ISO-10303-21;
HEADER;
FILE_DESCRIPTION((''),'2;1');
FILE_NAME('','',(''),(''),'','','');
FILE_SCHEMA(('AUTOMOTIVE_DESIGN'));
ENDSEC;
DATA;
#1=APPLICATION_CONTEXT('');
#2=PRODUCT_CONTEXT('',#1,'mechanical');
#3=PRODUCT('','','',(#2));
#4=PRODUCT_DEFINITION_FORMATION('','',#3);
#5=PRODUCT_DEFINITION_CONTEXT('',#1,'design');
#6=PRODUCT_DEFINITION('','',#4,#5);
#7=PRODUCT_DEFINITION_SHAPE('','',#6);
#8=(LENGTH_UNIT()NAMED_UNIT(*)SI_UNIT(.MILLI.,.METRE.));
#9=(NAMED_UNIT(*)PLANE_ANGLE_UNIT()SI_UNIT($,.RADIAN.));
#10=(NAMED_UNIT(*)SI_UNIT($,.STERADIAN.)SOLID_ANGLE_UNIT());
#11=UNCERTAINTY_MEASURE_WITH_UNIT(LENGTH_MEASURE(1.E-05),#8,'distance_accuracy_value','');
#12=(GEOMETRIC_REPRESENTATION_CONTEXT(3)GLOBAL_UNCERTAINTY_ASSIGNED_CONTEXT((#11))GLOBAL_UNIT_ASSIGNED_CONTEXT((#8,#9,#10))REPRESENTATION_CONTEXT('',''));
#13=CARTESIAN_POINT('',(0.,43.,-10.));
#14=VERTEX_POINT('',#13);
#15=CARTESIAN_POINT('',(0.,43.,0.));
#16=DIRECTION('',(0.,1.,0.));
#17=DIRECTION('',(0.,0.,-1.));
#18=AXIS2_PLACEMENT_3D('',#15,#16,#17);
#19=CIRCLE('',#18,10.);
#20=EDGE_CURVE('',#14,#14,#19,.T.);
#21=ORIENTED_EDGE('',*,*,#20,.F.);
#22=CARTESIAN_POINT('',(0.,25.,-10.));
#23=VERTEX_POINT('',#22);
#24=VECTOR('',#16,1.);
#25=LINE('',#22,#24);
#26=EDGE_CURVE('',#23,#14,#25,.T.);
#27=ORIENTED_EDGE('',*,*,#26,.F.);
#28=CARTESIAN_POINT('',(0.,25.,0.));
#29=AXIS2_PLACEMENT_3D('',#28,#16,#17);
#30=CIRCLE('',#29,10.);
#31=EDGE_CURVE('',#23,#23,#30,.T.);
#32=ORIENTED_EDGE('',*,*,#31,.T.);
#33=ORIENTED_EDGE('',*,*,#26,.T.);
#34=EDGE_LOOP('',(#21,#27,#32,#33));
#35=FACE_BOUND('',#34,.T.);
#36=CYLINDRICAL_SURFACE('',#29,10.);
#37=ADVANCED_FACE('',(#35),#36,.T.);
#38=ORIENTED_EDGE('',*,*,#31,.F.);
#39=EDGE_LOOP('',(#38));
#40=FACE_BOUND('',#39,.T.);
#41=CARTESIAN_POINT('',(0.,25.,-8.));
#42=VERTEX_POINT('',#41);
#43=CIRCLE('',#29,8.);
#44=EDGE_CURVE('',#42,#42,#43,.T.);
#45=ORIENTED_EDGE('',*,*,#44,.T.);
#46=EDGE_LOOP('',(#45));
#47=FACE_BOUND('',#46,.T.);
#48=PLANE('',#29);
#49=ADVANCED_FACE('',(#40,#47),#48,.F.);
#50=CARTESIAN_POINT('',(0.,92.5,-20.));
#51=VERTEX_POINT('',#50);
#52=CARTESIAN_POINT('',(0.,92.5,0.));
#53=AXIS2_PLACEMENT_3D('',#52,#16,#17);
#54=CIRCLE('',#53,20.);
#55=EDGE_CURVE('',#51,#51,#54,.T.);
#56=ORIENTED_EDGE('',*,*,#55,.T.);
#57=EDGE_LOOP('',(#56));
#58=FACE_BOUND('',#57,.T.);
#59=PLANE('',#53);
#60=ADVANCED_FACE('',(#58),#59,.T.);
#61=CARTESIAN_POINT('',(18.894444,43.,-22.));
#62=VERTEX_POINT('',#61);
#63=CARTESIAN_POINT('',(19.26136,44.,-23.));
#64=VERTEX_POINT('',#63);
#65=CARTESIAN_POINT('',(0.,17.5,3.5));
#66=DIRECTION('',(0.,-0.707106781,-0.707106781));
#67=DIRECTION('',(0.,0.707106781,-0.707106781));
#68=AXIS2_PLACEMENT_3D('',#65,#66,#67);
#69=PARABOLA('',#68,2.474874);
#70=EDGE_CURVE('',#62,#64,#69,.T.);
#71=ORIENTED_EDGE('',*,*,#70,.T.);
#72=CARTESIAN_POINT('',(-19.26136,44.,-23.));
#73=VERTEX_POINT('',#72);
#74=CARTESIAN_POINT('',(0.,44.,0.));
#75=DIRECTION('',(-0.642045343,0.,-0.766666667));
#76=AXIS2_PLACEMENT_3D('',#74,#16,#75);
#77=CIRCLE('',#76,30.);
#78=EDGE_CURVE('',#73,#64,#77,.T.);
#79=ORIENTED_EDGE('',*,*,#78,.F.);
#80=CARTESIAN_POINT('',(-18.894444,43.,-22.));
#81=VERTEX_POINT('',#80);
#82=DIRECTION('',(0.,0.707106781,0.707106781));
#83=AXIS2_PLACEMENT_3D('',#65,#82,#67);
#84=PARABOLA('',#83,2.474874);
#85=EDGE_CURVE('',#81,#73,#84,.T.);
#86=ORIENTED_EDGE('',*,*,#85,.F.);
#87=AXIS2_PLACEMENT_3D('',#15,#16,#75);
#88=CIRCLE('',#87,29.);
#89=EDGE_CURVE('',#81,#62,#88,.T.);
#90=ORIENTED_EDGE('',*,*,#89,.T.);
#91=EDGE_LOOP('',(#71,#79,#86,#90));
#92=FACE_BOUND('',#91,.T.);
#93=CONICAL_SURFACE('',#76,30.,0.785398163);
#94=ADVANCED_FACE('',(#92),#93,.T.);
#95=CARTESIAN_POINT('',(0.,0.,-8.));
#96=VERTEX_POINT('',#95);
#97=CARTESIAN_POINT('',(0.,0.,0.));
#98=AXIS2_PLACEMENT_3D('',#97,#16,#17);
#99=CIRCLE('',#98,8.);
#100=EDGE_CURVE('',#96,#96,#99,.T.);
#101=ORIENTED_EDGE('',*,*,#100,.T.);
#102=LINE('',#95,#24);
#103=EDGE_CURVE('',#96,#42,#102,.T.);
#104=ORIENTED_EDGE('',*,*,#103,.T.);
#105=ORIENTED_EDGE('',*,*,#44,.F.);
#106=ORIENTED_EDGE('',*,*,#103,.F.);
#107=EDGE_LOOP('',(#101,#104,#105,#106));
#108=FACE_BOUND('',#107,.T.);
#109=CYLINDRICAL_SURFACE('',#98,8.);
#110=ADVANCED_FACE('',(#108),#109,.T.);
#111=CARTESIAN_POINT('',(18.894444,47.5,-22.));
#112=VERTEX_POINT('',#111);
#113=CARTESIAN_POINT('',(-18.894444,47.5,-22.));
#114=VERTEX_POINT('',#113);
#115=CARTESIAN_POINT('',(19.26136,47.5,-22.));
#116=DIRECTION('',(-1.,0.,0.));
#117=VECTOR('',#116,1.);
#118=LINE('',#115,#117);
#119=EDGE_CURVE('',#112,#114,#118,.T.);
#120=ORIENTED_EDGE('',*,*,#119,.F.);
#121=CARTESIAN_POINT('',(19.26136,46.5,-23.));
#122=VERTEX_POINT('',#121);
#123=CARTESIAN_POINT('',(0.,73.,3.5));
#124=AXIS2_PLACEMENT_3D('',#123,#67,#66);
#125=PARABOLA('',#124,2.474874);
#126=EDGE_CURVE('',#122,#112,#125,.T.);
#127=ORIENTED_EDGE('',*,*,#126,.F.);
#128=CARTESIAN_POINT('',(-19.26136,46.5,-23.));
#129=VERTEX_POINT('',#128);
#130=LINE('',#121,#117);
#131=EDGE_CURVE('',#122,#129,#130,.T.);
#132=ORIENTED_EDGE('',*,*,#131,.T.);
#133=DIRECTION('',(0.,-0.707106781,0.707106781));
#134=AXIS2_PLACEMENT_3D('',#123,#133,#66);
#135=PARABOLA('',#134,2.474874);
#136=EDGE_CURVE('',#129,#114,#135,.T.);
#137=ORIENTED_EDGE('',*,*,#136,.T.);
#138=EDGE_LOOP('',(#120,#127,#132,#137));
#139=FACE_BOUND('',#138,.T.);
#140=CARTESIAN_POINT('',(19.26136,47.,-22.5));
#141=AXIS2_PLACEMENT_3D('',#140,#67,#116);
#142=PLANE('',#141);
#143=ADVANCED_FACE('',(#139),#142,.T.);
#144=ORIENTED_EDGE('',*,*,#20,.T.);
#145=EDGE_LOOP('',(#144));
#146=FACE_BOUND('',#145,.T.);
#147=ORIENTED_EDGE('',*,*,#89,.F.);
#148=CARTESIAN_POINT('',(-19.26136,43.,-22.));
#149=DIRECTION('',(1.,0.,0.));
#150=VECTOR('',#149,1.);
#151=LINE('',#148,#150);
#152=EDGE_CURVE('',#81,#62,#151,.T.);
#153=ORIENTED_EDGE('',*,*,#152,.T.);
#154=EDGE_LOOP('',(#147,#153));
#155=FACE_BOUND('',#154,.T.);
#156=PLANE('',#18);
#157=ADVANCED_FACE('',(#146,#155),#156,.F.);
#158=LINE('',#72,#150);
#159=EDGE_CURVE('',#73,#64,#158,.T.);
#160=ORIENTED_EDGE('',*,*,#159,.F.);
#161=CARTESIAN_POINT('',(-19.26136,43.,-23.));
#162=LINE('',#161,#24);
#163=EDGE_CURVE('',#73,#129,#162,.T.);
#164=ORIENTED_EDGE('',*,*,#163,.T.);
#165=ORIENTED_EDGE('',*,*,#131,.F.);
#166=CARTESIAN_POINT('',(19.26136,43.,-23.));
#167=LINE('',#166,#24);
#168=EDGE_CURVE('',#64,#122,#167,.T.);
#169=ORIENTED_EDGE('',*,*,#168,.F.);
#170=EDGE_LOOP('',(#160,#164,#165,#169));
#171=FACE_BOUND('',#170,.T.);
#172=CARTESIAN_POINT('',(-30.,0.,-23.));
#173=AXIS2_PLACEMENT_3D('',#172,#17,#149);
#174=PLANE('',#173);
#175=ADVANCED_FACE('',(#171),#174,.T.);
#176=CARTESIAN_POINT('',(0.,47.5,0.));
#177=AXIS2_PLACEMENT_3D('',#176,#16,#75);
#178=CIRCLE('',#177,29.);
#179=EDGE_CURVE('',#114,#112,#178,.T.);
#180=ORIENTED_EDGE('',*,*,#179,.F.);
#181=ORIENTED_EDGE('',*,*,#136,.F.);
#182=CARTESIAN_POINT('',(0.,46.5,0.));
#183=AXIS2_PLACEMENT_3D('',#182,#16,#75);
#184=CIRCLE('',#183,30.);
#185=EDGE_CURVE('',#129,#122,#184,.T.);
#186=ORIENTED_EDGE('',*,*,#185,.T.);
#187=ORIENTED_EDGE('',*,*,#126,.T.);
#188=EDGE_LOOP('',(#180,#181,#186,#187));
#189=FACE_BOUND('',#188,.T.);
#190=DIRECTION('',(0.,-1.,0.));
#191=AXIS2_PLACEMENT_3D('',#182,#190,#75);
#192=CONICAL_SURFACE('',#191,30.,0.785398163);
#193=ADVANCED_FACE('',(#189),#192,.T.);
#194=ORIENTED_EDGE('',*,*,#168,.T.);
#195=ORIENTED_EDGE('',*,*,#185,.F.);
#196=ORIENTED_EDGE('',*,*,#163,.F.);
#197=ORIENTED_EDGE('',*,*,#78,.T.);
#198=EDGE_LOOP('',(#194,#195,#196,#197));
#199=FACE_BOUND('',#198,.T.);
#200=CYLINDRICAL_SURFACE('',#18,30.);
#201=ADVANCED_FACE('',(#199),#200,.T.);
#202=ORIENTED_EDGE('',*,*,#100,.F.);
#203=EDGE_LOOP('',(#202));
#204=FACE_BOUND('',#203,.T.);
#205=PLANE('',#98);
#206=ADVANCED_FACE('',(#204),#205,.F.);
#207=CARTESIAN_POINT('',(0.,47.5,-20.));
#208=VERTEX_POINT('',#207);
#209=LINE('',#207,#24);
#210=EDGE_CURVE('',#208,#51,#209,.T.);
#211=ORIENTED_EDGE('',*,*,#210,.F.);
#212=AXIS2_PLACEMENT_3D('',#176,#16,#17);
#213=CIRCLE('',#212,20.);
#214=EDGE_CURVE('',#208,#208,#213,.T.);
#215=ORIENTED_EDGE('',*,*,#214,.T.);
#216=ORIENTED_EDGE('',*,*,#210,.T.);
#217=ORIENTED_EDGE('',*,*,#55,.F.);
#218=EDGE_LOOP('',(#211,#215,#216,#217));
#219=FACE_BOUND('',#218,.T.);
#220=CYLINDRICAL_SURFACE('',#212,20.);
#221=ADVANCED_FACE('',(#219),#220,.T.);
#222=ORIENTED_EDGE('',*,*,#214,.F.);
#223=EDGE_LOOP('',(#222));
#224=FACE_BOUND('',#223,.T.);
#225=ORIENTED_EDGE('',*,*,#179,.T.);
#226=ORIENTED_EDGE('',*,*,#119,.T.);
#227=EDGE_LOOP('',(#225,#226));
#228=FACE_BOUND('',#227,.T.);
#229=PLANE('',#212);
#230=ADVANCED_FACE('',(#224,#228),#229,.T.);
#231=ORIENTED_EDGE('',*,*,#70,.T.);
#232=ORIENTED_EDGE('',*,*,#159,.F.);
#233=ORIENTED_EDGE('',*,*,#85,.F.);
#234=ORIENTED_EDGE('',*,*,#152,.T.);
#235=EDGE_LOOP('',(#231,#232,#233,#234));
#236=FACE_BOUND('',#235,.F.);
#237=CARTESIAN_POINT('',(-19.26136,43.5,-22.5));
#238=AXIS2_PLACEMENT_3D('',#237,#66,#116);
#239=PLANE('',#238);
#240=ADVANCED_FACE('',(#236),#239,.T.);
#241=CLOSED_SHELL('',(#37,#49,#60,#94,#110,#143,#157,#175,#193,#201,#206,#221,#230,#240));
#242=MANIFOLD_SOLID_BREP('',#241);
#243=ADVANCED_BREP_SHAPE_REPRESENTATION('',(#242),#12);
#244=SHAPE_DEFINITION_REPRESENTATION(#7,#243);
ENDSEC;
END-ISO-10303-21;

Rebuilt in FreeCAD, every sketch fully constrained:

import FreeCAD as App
import Part
import Sketcher

V = App.Vector


def edges_at(feature, points):
    """Names of the edges that pass closest to the given points."""
    edges = feature.Shape.Edges
    near = lambda p: min(range(len(edges)), key=lambda i: edges[i].distToShape(Part.Vertex(*p))[0])
    return sorted({f"Edge{near(p) + 1}" for p in points})

doc = App.newDocument("Part")
body = doc.addObject("PartDesign::Body", "Body")

sketch1 = body.newObject("Sketcher::SketchObject", "Sketch")
sketch1.AttachmentSupport = (doc.getObject("YZ_Plane"), [""])
sketch1.MapMode = "FlatFace"
sketch1.addGeometry([
    Part.LineSegment(V(92.5, 0, 0), V(0, 0, 0)),
    Part.LineSegment(V(0, 0, 0), V(0, -8, 0)),
    Part.LineSegment(V(0, -8, 0), V(25, -8, 0)),
    Part.LineSegment(V(25, -8, 0), V(25, -10, 0)),
    Part.LineSegment(V(25, -10, 0), V(43, -10, 0)),
    Part.LineSegment(V(43, -10, 0), V(43, -30, 0)),
    Part.LineSegment(V(43, -30, 0), V(47.5, -30, 0)),
    Part.LineSegment(V(47.5, -30, 0), V(47.5, -20, 0)),
    Part.LineSegment(V(47.5, -20, 0), V(92.5, -20, 0)),
    Part.LineSegment(V(92.5, -20, 0), V(92.5, 0, 0)),
], False)
sketch1.addConstraint([
    Sketcher.Constraint("Coincident", 0, 2, 1, 1),
    Sketcher.Constraint("Coincident", 1, 2, 2, 1),
    Sketcher.Constraint("Coincident", 2, 2, 3, 1),
    Sketcher.Constraint("Coincident", 3, 2, 4, 1),
    Sketcher.Constraint("Coincident", 4, 2, 5, 1),
    Sketcher.Constraint("Coincident", 5, 2, 6, 1),
    Sketcher.Constraint("Coincident", 6, 2, 7, 1),
    Sketcher.Constraint("Coincident", 7, 2, 8, 1),
    Sketcher.Constraint("Coincident", 8, 2, 9, 1),
    Sketcher.Constraint("Coincident", 9, 2, 0, 1),
    Sketcher.Constraint("Horizontal", 0),
    Sketcher.Constraint("Vertical", 1),
    Sketcher.Constraint("Horizontal", 2),
    Sketcher.Constraint("Vertical", 3),
    Sketcher.Constraint("Horizontal", 4),
    Sketcher.Constraint("Vertical", 5),
    Sketcher.Constraint("Horizontal", 6),
    Sketcher.Constraint("Vertical", 7),
    Sketcher.Constraint("Horizontal", 8),
    Sketcher.Constraint("Vertical", 9),
    Sketcher.Constraint("Coincident", 0, 2, -1, 1),
    Sketcher.Constraint("Equal", 5, 9),
    Sketcher.Constraint("DistanceX", 2, 1, 2, 2, 25.0),
    Sketcher.Constraint("DistanceX", 4, 1, 4, 2, 18.0),
    Sketcher.Constraint("DistanceX", 8, 1, 8, 2, 45.0),
    Sketcher.Constraint("DistanceY", 1, 2, 1, 1, 8.0),
    Sketcher.Constraint("DistanceY", 3, 2, 3, 1, 2.0),
    Sketcher.Constraint("DistanceY", 5, 2, 5, 1, 20.0),
    Sketcher.Constraint("DistanceX", 0, 2, 0, 1, 92.5),
])
revolution = body.newObject("PartDesign::Revolution", "Revolution")
revolution.Profile = sketch1
revolution.ReferenceAxis = (sketch1, ["H_Axis"])
revolution.Angle = 360

sketch2 = body.newObject("Sketcher::SketchObject", "Sketch001")
sketch2.AttachmentSupport = (doc.getObject("XZ_Plane"), [""])
sketch2.MapMode = "FlatFace"
sketch2.addGeometry([
    Part.LineSegment(V(-30, -23, 0), V(-30, -33, 0)),
    Part.LineSegment(V(-30, -33, 0), V(30, -33, 0)),
    Part.LineSegment(V(30, -33, 0), V(30, -23, 0)),
    Part.LineSegment(V(30, -23, 0), V(-30, -23, 0)),
], False)
sketch2.addConstraint([
    Sketcher.Constraint("Coincident", 0, 2, 1, 1),
    Sketcher.Constraint("Coincident", 1, 2, 2, 1),
    Sketcher.Constraint("Coincident", 2, 2, 3, 1),
    Sketcher.Constraint("Coincident", 3, 2, 0, 1),
    Sketcher.Constraint("Vertical", 0),
    Sketcher.Constraint("Horizontal", 1),
    Sketcher.Constraint("Vertical", 2),
    Sketcher.Constraint("Horizontal", 3),
    Sketcher.Constraint("DistanceX", 1, 1, 1, 2, 60.0),
    Sketcher.Constraint("DistanceY", 0, 2, 0, 1, 10.0),
    Sketcher.Constraint("DistanceX", 0, 2, -1, 1, 30.0),
    Sketcher.Constraint("DistanceY", 0, 2, -1, 1, 33.0),
])
pocket1 = body.newObject("PartDesign::Pocket", "Pocket")
pocket1.Profile = sketch2
pocket1.Type = "ThroughAll"
doc.recompute()

chamfer = body.newObject("PartDesign::Chamfer", "Chamfer")
chamfer.Base = (pocket1, edges_at(pocket1, [
    (0, 47.5, 30),
    (0, 47.5, -23),
    (0, 43, 30),
    (0, 43, -23),
]))
chamfer.Size = 1

doc.recompute()
